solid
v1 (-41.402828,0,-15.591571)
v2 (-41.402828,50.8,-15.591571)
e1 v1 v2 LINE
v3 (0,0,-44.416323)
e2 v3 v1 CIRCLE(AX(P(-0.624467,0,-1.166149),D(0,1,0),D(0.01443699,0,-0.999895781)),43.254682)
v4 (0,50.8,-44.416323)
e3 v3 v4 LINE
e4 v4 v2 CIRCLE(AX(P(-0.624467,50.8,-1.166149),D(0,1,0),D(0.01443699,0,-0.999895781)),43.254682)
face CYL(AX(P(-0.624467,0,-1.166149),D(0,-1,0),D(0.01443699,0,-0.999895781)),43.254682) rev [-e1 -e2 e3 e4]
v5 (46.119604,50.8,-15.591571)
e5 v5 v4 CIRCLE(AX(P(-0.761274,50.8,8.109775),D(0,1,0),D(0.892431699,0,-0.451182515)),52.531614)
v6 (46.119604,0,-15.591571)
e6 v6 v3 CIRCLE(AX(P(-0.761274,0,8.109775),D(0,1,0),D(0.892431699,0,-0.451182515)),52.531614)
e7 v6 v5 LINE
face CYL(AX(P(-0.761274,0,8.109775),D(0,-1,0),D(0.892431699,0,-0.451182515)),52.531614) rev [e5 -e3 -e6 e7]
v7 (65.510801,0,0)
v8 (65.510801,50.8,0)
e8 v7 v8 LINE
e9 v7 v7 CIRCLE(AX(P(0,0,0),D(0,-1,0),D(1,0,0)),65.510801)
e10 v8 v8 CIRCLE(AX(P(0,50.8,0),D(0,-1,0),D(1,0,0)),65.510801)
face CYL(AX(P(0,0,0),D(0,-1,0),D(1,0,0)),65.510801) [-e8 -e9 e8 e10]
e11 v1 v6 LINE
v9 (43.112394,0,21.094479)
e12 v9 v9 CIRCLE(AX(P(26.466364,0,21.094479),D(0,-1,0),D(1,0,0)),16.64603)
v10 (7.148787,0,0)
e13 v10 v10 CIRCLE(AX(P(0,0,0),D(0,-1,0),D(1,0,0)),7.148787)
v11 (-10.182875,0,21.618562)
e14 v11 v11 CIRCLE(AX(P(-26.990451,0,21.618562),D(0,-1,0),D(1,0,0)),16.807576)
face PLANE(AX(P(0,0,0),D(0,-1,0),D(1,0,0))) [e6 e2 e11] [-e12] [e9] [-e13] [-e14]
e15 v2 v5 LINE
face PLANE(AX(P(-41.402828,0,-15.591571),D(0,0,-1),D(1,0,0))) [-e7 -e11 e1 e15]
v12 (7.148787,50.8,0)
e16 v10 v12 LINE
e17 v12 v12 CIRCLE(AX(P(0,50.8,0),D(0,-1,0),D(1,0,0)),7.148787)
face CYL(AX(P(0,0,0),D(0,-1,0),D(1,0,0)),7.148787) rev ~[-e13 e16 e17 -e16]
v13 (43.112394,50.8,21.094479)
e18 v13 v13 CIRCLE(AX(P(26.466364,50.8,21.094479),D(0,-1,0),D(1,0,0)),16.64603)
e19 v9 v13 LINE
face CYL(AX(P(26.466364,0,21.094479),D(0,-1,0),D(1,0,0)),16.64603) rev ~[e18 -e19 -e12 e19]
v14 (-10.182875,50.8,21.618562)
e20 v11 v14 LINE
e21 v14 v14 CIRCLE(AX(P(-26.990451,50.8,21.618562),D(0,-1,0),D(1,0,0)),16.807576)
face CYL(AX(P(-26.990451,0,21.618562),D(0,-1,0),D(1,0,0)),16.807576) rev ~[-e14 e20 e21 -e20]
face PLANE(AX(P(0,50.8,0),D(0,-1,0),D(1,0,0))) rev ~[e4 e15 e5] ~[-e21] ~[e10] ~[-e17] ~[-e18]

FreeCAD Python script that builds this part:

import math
import FreeCAD as App
import Part
import Sketcher

V = App.Vector
Q = App.Units.Quantity

doc = App.newDocument("Part")
params = doc.addObject("Spreadsheet::Sheet", "Params")
for row, (alias, value) in enumerate([
    ("pad1_length", "2 in"),
], start=1):
    params.set(f"A{row}", alias)
    params.set(f"B{row}", "=" + value)
    params.setAlias(f"B{row}", alias)

body = doc.addObject("PartDesign::Body", "Body")

# Sketch on XZ plane
sketch1 = doc.addObject("Sketcher::SketchObject", "Sketch")
body.addObject(sketch1)
sketch1.AttachmentSupport = (doc.XZ_Plane, [""])
sketch1.MapMode = "FlatFace"
sketch1.addGeometry(Part.Circle(V(0, 0, 0), V(0, 0, 1), 66), False)
sketch1.addGeometry(Part.ArcOfCircle(Part.Circle(V(-1, 8, 0), V(0, 0, 1), 53), math.radians(-89), math.radians(-27)), False)
sketch1.addGeometry(Part.ArcOfCircle(Part.Circle(V(-1, -1, 0), V(0, 0, 1), 43), math.radians(-161), math.radians(-89)), False)
sketch1.addGeometry(Part.LineSegment(V(-41, -16, 0), V(46, -16, 0)), False)
sketch1.addGeometry(Part.Circle(V(0, 0, 0), V(0, 0, 1), 7), False)
sketch1.addGeometry(Part.Circle(V(-27, 22, 0), V(0, 0, 1), 17), False)
sketch1.addGeometry(Part.Circle(V(26, 21, 0), V(0, 0, 1), 17), False)
sketch1.addConstraint(Sketcher.Constraint("Coincident", 1, 1, 2, 2))
sketch1.addConstraint(Sketcher.Constraint("Coincident", 2, 1, 3, 1))
sketch1.addConstraint(Sketcher.Constraint("Coincident", 3, 2, 1, 2))
sketch1.addConstraint(Sketcher.Constraint("Horizontal", 3))
sketch1.addConstraint(Sketcher.Constraint("Coincident", 0, 3, -1, 1))
sketch1.addConstraint(Sketcher.Constraint("Coincident", 4, 3, -1, 1))
sketch1.addConstraint(Sketcher.Constraint("PointOnObject", 1, 1, -2))
sketch1.addConstraint(Sketcher.Constraint("Diameter", 0, Q("131.021602 mm")))
sketch1.addConstraint(Sketcher.Constraint("Diameter", 6, Q("33.29206 mm")))
sketch1.addConstraint(Sketcher.Constraint("Radius", 2, Q("43.254682 mm")))
sketch1.addConstraint(Sketcher.Constraint("Diameter", 4, Q("14.297574 mm")))
sketch1.addConstraint(Sketcher.Constraint("Diameter", 5, Q("33.615152 mm")))
sketch1.addConstraint(Sketcher.Constraint("Radius", 1, Q("52.531614 mm")))
sketch1.addConstraint(Sketcher.Constraint("DistanceY", 1, 1, 6, 3, Q("65.510802 mm")))
sketch1.addConstraint(Sketcher.Constraint("DistanceX", 3, 1, 3, 2, Q("87.522432 mm")))
sketch1.addConstraint(Sketcher.Constraint("DistanceY", 2, 3, -1, 1, Q("1.166149 mm")))
sketch1.addConstraint(Sketcher.Constraint("DistanceX", 5, 3, -1, 1, Q("26.990451 mm")))
sketch1.addConstraint(Sketcher.Constraint("DistanceY", -1, 1, 6, 3, Q("21.094479 mm")))
sketch1.addConstraint(Sketcher.Constraint("DistanceX", 2, 1, -1, 1, Q("41.402828 mm")))
sketch1.addConstraint(Sketcher.Constraint("DistanceY", 2, 3, 5, 3, Q("22.784711 mm")))
sketch1.addConstraint(Sketcher.Constraint("DistanceX", 2, 3, 6, 3, Q("27.090831 mm")))
pad1 = doc.addObject("PartDesign::Pad", "Pad")
body.addObject(pad1)
pad1.Profile = sketch1
pad1.setExpression("Length", "Params.pad1_length")
pad1.Reversed = True

doc.recompute()
